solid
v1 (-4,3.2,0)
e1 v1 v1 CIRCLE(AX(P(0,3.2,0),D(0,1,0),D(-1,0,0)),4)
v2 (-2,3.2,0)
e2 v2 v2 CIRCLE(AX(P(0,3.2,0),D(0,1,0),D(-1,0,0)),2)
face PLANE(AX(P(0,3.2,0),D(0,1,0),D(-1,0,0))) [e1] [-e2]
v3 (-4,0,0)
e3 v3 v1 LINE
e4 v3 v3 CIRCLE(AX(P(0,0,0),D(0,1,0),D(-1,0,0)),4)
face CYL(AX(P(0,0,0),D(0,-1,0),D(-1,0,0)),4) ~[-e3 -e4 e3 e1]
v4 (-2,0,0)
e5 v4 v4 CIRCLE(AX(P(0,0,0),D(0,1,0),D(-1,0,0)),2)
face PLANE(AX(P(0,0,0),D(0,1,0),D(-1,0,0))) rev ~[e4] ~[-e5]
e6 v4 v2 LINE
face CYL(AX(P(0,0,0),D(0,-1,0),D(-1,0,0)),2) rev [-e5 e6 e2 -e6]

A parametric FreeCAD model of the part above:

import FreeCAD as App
import Part
import Sketcher
Q = App.Units.Quantity

doc = App.newDocument("Part")
params = doc.addObject("Spreadsheet::Sheet", "Params")
for row, (alias, value) in enumerate([
    ("sketch1_diameter", "8 mm"),
    ("sketch1_diameter2", "4 mm"),
    ("pad1_length", "3.2 mm"),
], start=1):
    params.set(f"A{row}", alias)
    params.set(f"B{row}", "=" + value)
    params.setAlias(f"B{row}", alias)

body = doc.addObject("PartDesign::Body", "Body")

# Sketch on XZ plane
sketch1 = body.newObject("Sketcher::SketchObject", "Sketch")
sketch1.AttachmentSupport = (doc.getObject("XZ_Plane"), [""])
sketch1.MapMode = "FlatFace"
sketch1.addGeometry([
    Part.Circle(App.Vector(0, 0, 0), App.Vector(0, 0, 1), 4),
    Part.Circle(App.Vector(0, 0, 0), App.Vector(0, 0, 1), 2),
], False)
sketch1.addConstraint([
    Sketcher.Constraint("Coincident", 0, 3, -1, 1),
    Sketcher.Constraint("Coincident", 1, 3, -1, 1),
    Sketcher.Constraint("Diameter", 0, Q("8 mm")),
    Sketcher.Constraint("Diameter", 1, Q("4 mm")),
])
sketch1.setExpression("Constraints[2]", "Params.sketch1_diameter")
sketch1.setExpression("Constraints[3]", "Params.sketch1_diameter2")
pad1 = body.newObject("PartDesign::Pad", "Pad")
pad1.Profile = sketch1
pad1.setExpression("Length", "Params.pad1_length")
pad1.Reversed = True

doc.recompute()
